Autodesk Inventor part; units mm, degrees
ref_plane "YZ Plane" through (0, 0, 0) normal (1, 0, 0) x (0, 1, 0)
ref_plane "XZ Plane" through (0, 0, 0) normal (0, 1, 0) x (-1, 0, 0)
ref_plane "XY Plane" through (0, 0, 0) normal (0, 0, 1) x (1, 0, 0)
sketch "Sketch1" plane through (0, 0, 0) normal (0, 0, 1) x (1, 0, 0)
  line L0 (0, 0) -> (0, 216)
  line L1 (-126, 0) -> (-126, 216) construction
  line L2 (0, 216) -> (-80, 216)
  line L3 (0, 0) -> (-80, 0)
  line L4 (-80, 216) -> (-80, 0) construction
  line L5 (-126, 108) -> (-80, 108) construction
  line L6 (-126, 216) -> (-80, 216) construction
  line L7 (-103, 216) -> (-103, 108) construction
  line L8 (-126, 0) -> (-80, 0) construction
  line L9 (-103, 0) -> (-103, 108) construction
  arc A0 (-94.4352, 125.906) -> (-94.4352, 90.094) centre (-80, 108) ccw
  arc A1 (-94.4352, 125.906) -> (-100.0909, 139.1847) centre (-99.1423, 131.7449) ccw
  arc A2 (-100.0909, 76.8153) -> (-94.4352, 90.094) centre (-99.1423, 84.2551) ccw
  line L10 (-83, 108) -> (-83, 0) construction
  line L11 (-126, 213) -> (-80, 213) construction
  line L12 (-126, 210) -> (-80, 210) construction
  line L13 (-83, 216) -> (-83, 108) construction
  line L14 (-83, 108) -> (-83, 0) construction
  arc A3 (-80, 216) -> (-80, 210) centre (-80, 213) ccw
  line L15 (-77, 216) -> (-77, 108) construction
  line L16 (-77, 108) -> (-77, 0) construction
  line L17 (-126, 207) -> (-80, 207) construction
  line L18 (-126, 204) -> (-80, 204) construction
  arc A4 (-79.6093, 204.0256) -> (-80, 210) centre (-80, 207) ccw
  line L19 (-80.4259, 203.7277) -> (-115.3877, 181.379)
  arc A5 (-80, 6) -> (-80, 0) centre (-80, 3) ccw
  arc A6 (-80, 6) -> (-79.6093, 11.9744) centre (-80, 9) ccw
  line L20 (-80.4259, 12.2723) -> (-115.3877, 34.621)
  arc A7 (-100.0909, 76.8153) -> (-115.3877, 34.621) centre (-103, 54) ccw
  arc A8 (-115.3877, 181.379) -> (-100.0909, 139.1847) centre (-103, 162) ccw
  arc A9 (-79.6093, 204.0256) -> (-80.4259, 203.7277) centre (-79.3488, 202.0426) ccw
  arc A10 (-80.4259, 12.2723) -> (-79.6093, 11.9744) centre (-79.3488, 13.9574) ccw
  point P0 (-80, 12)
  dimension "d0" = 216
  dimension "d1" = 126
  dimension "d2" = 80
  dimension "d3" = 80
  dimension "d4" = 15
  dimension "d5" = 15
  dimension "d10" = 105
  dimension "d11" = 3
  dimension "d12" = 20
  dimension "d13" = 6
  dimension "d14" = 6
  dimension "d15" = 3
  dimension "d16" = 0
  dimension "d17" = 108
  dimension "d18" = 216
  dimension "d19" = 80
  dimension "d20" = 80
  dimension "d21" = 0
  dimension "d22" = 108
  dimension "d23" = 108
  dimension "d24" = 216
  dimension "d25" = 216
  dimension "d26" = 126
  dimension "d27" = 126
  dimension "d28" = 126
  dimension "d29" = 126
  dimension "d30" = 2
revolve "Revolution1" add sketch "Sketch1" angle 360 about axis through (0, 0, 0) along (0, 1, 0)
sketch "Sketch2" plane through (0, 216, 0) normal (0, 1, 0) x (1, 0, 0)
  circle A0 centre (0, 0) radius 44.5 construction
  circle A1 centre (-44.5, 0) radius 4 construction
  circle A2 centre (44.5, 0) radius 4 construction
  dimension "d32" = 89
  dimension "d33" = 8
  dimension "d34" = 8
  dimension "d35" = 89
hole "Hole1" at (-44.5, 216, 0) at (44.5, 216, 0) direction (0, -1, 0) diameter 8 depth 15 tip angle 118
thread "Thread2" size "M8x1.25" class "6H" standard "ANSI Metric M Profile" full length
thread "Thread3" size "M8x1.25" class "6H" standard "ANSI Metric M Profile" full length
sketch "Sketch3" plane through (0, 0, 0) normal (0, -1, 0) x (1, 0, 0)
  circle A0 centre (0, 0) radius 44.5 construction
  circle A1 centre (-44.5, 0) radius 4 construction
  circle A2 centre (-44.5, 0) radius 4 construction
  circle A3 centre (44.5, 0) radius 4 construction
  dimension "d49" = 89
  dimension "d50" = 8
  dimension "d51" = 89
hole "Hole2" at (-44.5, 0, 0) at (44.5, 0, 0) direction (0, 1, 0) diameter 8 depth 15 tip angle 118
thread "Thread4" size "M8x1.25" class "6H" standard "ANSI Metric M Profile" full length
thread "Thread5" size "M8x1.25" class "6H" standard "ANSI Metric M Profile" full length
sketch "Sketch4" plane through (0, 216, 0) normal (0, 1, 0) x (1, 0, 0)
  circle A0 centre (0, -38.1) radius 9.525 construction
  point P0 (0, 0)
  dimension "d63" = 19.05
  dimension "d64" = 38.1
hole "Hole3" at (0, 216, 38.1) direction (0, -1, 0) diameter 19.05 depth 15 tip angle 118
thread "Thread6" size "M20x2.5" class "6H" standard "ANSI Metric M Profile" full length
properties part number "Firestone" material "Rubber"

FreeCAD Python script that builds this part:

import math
import FreeCAD as App
import Part
import Sketcher
from FreeCAD import Vector

doc = App.newDocument("Part")
body = doc.addObject("PartDesign::Body", "Body")

# Sketch on XY plane
sketch1 = doc.addObject("Sketcher::SketchObject", "Sketch")
body.addObject(sketch1)
sketch1.AttachmentSupport = (doc.XY_Plane, [""])
sketch1.MapMode = "FlatFace"
sketch1.addGeometry([
    Part.LineSegment(Vector(-80, 0, 0), Vector(0, 0, 0)),  # 0
    Part.LineSegment(Vector(0, 0, 0), Vector(0, 216, 0)),  # 1
    Part.LineSegment(Vector(0, 216, 0), Vector(-80, 216, 0)),  # 2
    Part.ArcOfCircle(Part.Circle(Vector(-80, 213, 0), Vector(0, 0, 1), 3), math.radians(90), math.radians(270)),  # 3
    Part.ArcOfCircle(Part.Circle(Vector(-80, 207, 0), Vector(0, 0, 1), 2.99995), math.radians(-82.516799), math.radians(90)),  # 4
    Part.ArcOfCircle(Part.Circle(Vector(-79.349354, 202.044861, 0), Vector(0, 0, 1), 1.997724), math.radians(97.476601), math.radians(122.607873)),  # 5
    Part.LineSegment(Vector(-80.4259, 203.7277, 0), Vector(-115.3877, 181.379, 0)),  # 6
    Part.ArcOfCircle(Part.Circle(Vector(-103, 162, 0), Vector(0, 0, 1), 23.000016), math.radians(122.588064), math.radians(277.266377)),  # 7
    Part.ArcOfCircle(Part.Circle(Vector(-99.1423, 131.7449, 0), Vector(0, 0, 1), 7.49997), math.radians(-51.125555), math.radians(97.266202)),  # 8
    Part.ArcOfCircle(Part.Circle(Vector(-80, 108, 0), Vector(0, 0, 1), 22.999996), math.radians(128.874563), math.radians(231.125437)),  # 9
    Part.ArcOfCircle(Part.Circle(Vector(-99.1423, 84.2551, 0), Vector(0, 0, 1), 7.500031), math.radians(-97.266202), math.radians(51.125555)),  # 10
    Part.ArcOfCircle(Part.Circle(Vector(-103, 54, 0), Vector(0, 0, 1), 23.000017), math.radians(82.733623), math.radians(237.411936)),  # 11
    Part.LineSegment(Vector(-115.3877, 34.621, 0), Vector(-80.4259, 12.2723, 0)),  # 12
    Part.ArcOfCircle(Part.Circle(Vector(-79.347766, 13.959491, 0), Vector(0, 0, 1), 2.002246), math.radians(-122.579032), math.radians(-97.505442)),  # 13
    Part.ArcOfCircle(Part.Circle(Vector(-80, 9, 0), Vector(0, 0, 1), 3), math.radians(-90), math.radians(82.516799)),  # 14
    Part.ArcOfCircle(Part.Circle(Vector(-80, 3, 0), Vector(0, 0, 1), 3), math.radians(90), math.radians(270)),  # 15
], False)
sketch1.addConstraint([
    Sketcher.Constraint("Coincident", 0, 2, 1, 1),
    Sketcher.Constraint("Coincident", 1, 2, 2, 1),
    Sketcher.Constraint("Coincident", 2, 2, 3, 1),
    Sketcher.Constraint("Coincident", 3, 2, 4, 2),
    Sketcher.Constraint("Coincident", 4, 1, 5, 1),
    Sketcher.Constraint("Coincident", 5, 2, 6, 1),
    Sketcher.Constraint("Coincident", 6, 2, 7, 1),
    Sketcher.Constraint("Coincident", 7, 2, 8, 2),
    Sketcher.Constraint("Coincident", 8, 1, 9, 1),
    Sketcher.Constraint("Coincident", 9, 2, 10, 2),
    Sketcher.Constraint("Coincident", 10, 1, 11, 1),
    Sketcher.Constraint("Coincident", 11, 2, 12, 1),
    Sketcher.Constraint("Coincident", 12, 2, 13, 1),
    Sketcher.Constraint("Coincident", 13, 2, 14, 2),
    Sketcher.Constraint("Coincident", 14, 1, 15, 1),
    Sketcher.Constraint("Coincident", 15, 2, 0, 1),
    Sketcher.Constraint("Horizontal", 0),
    Sketcher.Constraint("Vertical", 1),
    Sketcher.Constraint("Horizontal", 2),
    Sketcher.Constraint("Coincident", 0, 2, -1, 1),
    Sketcher.Constraint("Radius", 3, 3.0),
    Sketcher.Constraint("Radius", 4, 3.0),
    Sketcher.Constraint("Radius", 14, 3.0),
    Sketcher.Constraint("Radius", 15, 3.0),
    Sketcher.Constraint("Radius", 8, 7.5),
    Sketcher.Constraint("Radius", 10, 7.5),
    Sketcher.Constraint("DistanceX", 0, 1, 0, 2, 80.0),
    Sketcher.Constraint("DistanceX", 2, 2, 2, 1, 80.0),
    Sketcher.Constraint("DistanceY", 1, 1, 1, 2, 216.0),
    Sketcher.Constraint("DistanceX", 3, 3, -1, 1, 80.0),
    Sketcher.Constraint("DistanceX", 4, 3, -1, 1, 80.0),
    Sketcher.Constraint("DistanceX", 9, 3, -1, 1, 80.0),
    Sketcher.Constraint("DistanceY", -1, 1, 9, 3, 108.0),
    Sketcher.Constraint("DistanceX", 14, 3, -1, 1, 80.0),
    Sketcher.Constraint("DistanceX", 15, 3, -1, 1, 80.0),
    Sketcher.Constraint("DistanceX", 3, 2, -1, 1, 80.0),
    Sketcher.Constraint("DistanceX", 14, 1, -1, 1, 80.0),
    Sketcher.Constraint("Radius", 7, 23.0),
    Sketcher.Constraint("Radius", 9, 23.0),
    Sketcher.Constraint("Radius", 11, 23.0),
    Sketcher.Constraint("DistanceY", 11, 3, 7, 3, 108.0),
    Sketcher.Constraint("DistanceX", 7, 3, -1, 1, 103.0),
    Sketcher.Constraint("DistanceY", -1, 1, 7, 3, 162.0),
    Sketcher.Constraint("DistanceX", 11, 3, -1, 1, 103.0),
    Sketcher.Constraint("Radius", 5, 1.9977),
    Sketcher.Constraint("Radius", 13, 2.0022),
    Sketcher.Constraint("DistanceY", 8, 3, 5, 3, 70.3),
    Sketcher.Constraint("DistanceX", 4, 1, 5, 3, 0.26),
    Sketcher.Constraint("DistanceX", 11, 2, 13, 3, 36.04),
    Sketcher.Constraint("DistanceX", 5, 2, -1, 1, 80.426),
    Sketcher.Constraint("DistanceY", -1, 1, 6, 2, 181.379),
    Sketcher.Constraint("DistanceX", 7, 2, -1, 1, 100.091),
    Sketcher.Constraint("DistanceY", -1, 1, 8, 1, 125.906),
    Sketcher.Constraint("DistanceY", -1, 1, 9, 2, 90.094),
    Sketcher.Constraint("DistanceX", 10, 1, -1, 1, 100.091),
    Sketcher.Constraint("DistanceY", -1, 1, 11, 2, 34.621),
    Sketcher.Constraint("DistanceX", 12, 2, -1, 1, 80.426),
    Sketcher.Constraint("DistanceY", 13, 2, 12, 2, 0.298),
])
revolution = doc.addObject("PartDesign::Revolution", "Revolution")
body.addObject(revolution)
revolution.Profile = sketch1
revolution.ReferenceAxis = (sketch1, ["V_Axis"])
revolution.Angle = 360

# Sketch on XZ plane
sketch2 = doc.addObject("Sketcher::SketchObject", "Sketch001")
body.addObject(sketch2)
sketch2.AttachmentSupport = (doc.XZ_Plane, [""])
sketch2.MapMode = "FlatFace"
sketch2.AttachmentOffset = App.Placement(Vector(0, 0, -216), App.Rotation())
sketch2.addGeometry([
    Part.Circle(Vector(-44.5, 0, 0), Vector(0, 0, 1), 4),
    Part.Circle(Vector(44.5, 0, 0), Vector(0, 0, 1), 4),
], False)
sketch2.addConstraint([
    Sketcher.Constraint("Equal", 0, 1),
    Sketcher.Constraint("Symmetric", 0, 3, 1, 3, -1, 1),
    Sketcher.Constraint("PointOnObject", 0, 3, -1),
    Sketcher.Constraint("Diameter", 0, 8.0),
    Sketcher.Constraint("DistanceX", 0, 3, 1, 3, 89.0),
])
doc.recompute()
hole = doc.addObject("PartDesign::Hole", "Hole")
body.addObject(hole)
hole.Profile = sketch2
hole.ThreadType = "None"
hole.Diameter = 8
hole.DepthType = "Dimension"
hole.Depth = 15
hole.DrillPoint = "Angled"
hole.DrillPointAngle = 118
hole.Reversed = True

# Sketch on XZ plane
sketch3 = doc.addObject("Sketcher::SketchObject", "Sketch002")
body.addObject(sketch3)
sketch3.AttachmentSupport = (doc.XZ_Plane, [""])
sketch3.MapMode = "FlatFace"
sketch3.addGeometry([
    Part.Circle(Vector(-44.5, 0, 0), Vector(0, 0, 1), 4),
    Part.Circle(Vector(44.5, 0, 0), Vector(0, 0, 1), 4),
], False)
sketch3.addConstraint([
    Sketcher.Constraint("Equal", 0, 1),
    Sketcher.Constraint("Symmetric", 0, 3, 1, 3, -1, 1),
    Sketcher.Constraint("PointOnObject", 0, 3, -1),
    Sketcher.Constraint("Diameter", 0, 8.0),
    Sketcher.Constraint("DistanceX", 0, 3, 1, 3, 89.0),
])
doc.recompute()
hole2 = doc.addObject("PartDesign::Hole", "Hole001")
body.addObject(hole2)
hole2.Profile = sketch3
hole2.ThreadType = "None"
hole2.Diameter = 8
hole2.DepthType = "Dimension"
hole2.Depth = 15
hole2.DrillPoint = "Angled"
hole2.DrillPointAngle = 118

# Sketch on XZ plane
sketch4 = doc.addObject("Sketcher::SketchObject", "Sketch003")
body.addObject(sketch4)
sketch4.AttachmentSupport = (doc.XZ_Plane, [""])
sketch4.MapMode = "FlatFace"
sketch4.AttachmentOffset = App.Placement(Vector(0, 0, -216), App.Rotation())
sketch4.addGeometry(Part.Circle(Vector(0, 38.1, 0), Vector(0, 0, 1), 9.525), False)
sketch4.addConstraint([
    Sketcher.Constraint("PointOnObject", 0, 3, -2),
    Sketcher.Constraint("Diameter", 0, 19.05),
    Sketcher.Constraint("DistanceY", -1, 1, 0, 3, 38.1),
])
doc.recompute()
hole3 = doc.addObject("PartDesign::Hole", "Hole002")
body.addObject(hole3)
hole3.Profile = sketch4
hole3.ThreadType = "None"
hole3.Diameter = 19.05
hole3.DepthType = "Dimension"
hole3.Depth = 15
hole3.DrillPoint = "Angled"
hole3.DrillPointAngle = 118
hole3.Reversed = True

doc.recompute()
